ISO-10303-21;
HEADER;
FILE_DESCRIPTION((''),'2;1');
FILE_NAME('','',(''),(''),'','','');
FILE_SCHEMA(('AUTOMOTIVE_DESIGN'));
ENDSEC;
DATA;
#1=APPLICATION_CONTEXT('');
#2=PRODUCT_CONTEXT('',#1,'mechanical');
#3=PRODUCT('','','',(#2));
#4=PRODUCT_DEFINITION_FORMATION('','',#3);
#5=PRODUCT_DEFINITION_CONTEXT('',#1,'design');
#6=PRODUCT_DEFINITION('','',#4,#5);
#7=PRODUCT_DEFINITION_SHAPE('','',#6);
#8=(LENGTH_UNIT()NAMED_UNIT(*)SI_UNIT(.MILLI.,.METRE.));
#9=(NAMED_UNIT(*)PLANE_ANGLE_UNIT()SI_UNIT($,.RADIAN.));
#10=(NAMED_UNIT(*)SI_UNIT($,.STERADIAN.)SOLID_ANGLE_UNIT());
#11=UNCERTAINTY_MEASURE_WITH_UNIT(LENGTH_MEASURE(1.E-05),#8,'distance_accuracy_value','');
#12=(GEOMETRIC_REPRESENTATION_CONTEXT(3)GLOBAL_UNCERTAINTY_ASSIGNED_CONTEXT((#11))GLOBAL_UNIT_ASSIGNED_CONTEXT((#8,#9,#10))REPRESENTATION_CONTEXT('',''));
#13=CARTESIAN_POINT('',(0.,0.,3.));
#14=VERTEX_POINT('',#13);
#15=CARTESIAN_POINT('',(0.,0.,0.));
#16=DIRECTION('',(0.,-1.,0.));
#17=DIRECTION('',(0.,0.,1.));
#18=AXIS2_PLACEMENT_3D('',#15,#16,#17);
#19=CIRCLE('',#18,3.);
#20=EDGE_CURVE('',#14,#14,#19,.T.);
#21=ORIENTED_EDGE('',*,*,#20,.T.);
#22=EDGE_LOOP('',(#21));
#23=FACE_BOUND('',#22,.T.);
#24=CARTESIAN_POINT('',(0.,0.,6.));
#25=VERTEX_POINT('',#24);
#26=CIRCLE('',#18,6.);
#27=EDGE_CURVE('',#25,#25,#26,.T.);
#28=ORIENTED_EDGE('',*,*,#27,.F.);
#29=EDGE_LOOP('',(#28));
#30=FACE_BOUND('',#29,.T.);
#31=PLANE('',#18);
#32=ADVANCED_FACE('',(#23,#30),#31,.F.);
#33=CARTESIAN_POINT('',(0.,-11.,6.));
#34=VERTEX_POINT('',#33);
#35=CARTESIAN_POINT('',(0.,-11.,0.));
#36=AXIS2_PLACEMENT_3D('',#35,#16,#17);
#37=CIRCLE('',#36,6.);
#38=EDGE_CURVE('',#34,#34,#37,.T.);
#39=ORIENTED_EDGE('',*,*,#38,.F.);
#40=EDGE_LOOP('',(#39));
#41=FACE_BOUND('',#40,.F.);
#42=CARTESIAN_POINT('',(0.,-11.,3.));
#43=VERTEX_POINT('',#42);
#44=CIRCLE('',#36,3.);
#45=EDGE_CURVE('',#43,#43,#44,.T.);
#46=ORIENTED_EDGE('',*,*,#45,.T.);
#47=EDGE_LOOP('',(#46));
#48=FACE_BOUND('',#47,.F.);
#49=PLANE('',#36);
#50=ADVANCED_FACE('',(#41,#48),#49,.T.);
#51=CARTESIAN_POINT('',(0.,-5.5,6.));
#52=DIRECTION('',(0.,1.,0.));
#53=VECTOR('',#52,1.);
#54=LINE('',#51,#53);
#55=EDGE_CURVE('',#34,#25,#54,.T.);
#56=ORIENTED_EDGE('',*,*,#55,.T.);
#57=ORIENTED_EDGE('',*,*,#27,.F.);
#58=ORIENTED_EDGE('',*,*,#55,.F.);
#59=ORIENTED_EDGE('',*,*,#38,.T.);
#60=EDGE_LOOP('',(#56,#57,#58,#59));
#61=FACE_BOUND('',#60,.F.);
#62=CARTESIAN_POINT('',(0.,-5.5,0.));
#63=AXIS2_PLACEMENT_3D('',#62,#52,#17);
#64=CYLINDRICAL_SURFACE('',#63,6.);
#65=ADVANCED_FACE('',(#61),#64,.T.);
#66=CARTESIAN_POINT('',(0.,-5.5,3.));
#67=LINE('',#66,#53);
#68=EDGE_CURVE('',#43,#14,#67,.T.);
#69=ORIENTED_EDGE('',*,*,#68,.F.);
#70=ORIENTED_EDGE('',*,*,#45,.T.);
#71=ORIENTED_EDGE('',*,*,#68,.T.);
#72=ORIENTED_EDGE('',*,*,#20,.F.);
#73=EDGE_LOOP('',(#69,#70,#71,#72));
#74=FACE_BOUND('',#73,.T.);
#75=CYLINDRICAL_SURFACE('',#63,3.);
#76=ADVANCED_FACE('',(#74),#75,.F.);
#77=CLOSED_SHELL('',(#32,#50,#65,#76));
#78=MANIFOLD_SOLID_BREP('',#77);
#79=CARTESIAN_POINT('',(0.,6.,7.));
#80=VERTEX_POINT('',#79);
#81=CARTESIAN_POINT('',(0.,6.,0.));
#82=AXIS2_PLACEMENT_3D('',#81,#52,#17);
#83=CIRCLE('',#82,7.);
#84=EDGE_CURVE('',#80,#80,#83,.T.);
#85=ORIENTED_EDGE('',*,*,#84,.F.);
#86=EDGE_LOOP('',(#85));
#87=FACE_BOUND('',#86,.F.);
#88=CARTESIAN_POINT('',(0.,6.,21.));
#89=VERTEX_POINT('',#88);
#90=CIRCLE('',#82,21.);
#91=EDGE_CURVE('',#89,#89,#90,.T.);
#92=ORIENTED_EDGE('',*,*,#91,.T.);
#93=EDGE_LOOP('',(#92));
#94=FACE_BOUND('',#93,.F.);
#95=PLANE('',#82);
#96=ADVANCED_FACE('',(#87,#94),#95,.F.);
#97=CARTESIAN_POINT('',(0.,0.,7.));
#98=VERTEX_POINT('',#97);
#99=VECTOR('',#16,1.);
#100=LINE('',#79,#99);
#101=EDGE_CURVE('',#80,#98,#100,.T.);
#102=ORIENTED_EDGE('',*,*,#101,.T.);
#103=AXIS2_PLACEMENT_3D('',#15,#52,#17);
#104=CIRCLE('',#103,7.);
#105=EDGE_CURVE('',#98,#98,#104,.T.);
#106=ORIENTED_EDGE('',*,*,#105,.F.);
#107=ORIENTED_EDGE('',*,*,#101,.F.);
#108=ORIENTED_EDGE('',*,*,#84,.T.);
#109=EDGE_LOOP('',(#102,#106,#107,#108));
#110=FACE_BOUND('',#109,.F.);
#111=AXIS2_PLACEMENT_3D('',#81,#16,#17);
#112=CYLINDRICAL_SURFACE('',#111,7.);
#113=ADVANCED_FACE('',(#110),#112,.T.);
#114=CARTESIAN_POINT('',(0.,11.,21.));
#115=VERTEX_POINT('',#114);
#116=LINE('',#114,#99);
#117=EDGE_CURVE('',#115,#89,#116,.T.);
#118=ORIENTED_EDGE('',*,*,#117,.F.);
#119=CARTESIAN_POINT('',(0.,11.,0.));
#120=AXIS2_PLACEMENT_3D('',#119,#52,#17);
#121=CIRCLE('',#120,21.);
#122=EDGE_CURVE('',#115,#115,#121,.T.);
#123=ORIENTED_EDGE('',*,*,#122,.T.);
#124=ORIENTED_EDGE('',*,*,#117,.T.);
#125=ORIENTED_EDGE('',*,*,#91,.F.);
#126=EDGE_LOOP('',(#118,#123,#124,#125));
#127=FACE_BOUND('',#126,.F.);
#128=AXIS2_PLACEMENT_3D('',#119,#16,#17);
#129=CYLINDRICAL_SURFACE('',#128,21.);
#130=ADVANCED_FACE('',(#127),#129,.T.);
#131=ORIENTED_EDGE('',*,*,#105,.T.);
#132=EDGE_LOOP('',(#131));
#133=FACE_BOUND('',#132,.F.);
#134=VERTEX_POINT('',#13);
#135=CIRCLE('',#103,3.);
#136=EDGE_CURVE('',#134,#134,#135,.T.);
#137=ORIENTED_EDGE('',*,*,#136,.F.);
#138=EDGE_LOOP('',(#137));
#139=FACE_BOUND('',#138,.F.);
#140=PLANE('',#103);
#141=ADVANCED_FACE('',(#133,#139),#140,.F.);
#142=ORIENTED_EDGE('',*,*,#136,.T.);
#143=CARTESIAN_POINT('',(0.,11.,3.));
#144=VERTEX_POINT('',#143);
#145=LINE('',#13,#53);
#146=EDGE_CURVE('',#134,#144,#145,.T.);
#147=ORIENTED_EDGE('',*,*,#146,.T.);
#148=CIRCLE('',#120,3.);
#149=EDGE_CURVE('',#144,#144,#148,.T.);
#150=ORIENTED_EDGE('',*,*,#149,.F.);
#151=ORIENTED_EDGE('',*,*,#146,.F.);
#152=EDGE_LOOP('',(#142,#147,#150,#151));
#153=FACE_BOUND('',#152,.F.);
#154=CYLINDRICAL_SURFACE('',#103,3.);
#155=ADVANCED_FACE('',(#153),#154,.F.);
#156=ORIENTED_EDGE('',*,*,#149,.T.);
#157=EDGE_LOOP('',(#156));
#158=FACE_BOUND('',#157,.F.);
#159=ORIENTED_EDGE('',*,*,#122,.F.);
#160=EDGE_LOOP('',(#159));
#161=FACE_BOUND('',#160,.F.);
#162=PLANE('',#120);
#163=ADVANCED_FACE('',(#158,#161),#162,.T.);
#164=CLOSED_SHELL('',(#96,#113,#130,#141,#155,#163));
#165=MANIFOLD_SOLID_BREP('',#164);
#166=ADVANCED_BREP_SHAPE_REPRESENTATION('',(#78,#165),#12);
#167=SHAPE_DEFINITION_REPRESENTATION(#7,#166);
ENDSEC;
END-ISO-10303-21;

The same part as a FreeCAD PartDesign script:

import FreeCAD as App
import Part
import Sketcher
from FreeCAD import Vector
Q = App.Units.Quantity

doc = App.newDocument("Part")
body = doc.addObject("PartDesign::Body", "Body")

# Sketch on YZ plane
sketch1 = body.newObject("Sketcher::SketchObject", "Sketch")
sketch1.AttachmentSupport = (doc.getObject("YZ_Plane"), [""])
sketch1.MapMode = "FlatFace"
sketch1.addGeometry(Part.LineSegment(Vector(-11, 6, 0), Vector(-11, 3, 0)), False)
sketch1.addGeometry(Part.LineSegment(Vector(-11, 3, 0), Vector(0, 3, 0)), False)
sketch1.addGeometry(Part.LineSegment(Vector(0, 3, 0), Vector(0, 6, 0)), False)
sketch1.addGeometry(Part.LineSegment(Vector(0, 6, 0), Vector(-11, 6, 0)), False)
sketch1.addConstraint(Sketcher.Constraint("Coincident", 0, 2, 1, 1))
sketch1.addConstraint(Sketcher.Constraint("Coincident", 1, 2, 2, 1))
sketch1.addConstraint(Sketcher.Constraint("Coincident", 2, 2, 3, 1))
sketch1.addConstraint(Sketcher.Constraint("Coincident", 3, 2, 0, 1))
sketch1.addConstraint(Sketcher.Constraint("Vertical", 0))
sketch1.addConstraint(Sketcher.Constraint("Horizontal", 1))
sketch1.addConstraint(Sketcher.Constraint("Vertical", 2))
sketch1.addConstraint(Sketcher.Constraint("Horizontal", 3))
sketch1.addConstraint(Sketcher.Constraint("PointOnObject", 1, 2, -2))
sketch1.addConstraint(Sketcher.Constraint("DistanceX", 1, 1, 1, 2, Q("11 mm")))
sketch1.addConstraint(Sketcher.Constraint("DistanceY", 0, 2, 0, 1, Q("3 mm")))
sketch1.addConstraint(Sketcher.Constraint("DistanceY", -1, 1, 0, 2, Q("3 mm")))
revolution = body.newObject("PartDesign::Revolution", "Revolution")
revolution.Profile = sketch1
revolution.ReferenceAxis = (sketch1, ["H_Axis"])
revolution.Angle = 360
body2 = doc.addObject("PartDesign::Body", "Body001")

# Sketch on YZ plane
sketch2 = body2.newObject("Sketcher::SketchObject", "Sketch001")
sketch2.AttachmentSupport = (doc.getObject("YZ_Plane001"), [""])
sketch2.MapMode = "FlatFace"
sketch2.addGeometry(Part.LineSegment(Vector(0, 7, 0), Vector(0, 3, 0)), False)
sketch2.addGeometry(Part.LineSegment(Vector(0, 3, 0), Vector(11, 3, 0)), False)
sketch2.addGeometry(Part.LineSegment(Vector(11, 3, 0), Vector(11, 21, 0)), False)
sketch2.addGeometry(Part.LineSegment(Vector(11, 21, 0), Vector(6, 21, 0)), False)
sketch2.addGeometry(Part.LineSegment(Vector(6, 21, 0), Vector(6, 7, 0)), False)
sketch2.addGeometry(Part.LineSegment(Vector(6, 7, 0), Vector(0, 7, 0)), False)
sketch2.addConstraint(Sketcher.Constraint("Coincident", 0, 2, 1, 1))
sketch2.addConstraint(Sketcher.Constraint("Coincident", 1, 2, 2, 1))
sketch2.addConstraint(Sketcher.Constraint("Coincident", 2, 2, 3, 1))
sketch2.addConstraint(Sketcher.Constraint("Coincident", 3, 2, 4, 1))
sketch2.addConstraint(Sketcher.Constraint("Coincident", 4, 2, 5, 1))
sketch2.addConstraint(Sketcher.Constraint("Coincident", 5, 2, 0, 1))
sketch2.addConstraint(Sketcher.Constraint("Vertical", 0))
sketch2.addConstraint(Sketcher.Constraint("Horizontal", 1))
sketch2.addConstraint(Sketcher.Constraint("Vertical", 2))
sketch2.addConstraint(Sketcher.Constraint("Horizontal", 3))
sketch2.addConstraint(Sketcher.Constraint("Vertical", 4))
sketch2.addConstraint(Sketcher.Constraint("Horizontal", 5))
sketch2.addConstraint(Sketcher.Constraint("PointOnObject", 0, 2, -2))
sketch2.addConstraint(Sketcher.Constraint("DistanceX", 1, 1, 1, 2, Q("11 mm")))
sketch2.addConstraint(Sketcher.Constraint("DistanceX", 3, 2, 3, 1, Q("5 mm")))
sketch2.addConstraint(Sketcher.Constraint("DistanceY", 0, 2, 0, 1, Q("4 mm")))
sketch2.addConstraint(Sketcher.Constraint("DistanceY", 2, 1, 2, 2, Q("18 mm")))
sketch2.addConstraint(Sketcher.Constraint("DistanceY", -1, 1, 0, 2, Q("3 mm")))
revolution2 = body2.newObject("PartDesign::Revolution", "Revolution001")
revolution2.Profile = sketch2
revolution2.ReferenceAxis = (sketch2, ["H_Axis"])
revolution2.Angle = 360

doc.recompute()
